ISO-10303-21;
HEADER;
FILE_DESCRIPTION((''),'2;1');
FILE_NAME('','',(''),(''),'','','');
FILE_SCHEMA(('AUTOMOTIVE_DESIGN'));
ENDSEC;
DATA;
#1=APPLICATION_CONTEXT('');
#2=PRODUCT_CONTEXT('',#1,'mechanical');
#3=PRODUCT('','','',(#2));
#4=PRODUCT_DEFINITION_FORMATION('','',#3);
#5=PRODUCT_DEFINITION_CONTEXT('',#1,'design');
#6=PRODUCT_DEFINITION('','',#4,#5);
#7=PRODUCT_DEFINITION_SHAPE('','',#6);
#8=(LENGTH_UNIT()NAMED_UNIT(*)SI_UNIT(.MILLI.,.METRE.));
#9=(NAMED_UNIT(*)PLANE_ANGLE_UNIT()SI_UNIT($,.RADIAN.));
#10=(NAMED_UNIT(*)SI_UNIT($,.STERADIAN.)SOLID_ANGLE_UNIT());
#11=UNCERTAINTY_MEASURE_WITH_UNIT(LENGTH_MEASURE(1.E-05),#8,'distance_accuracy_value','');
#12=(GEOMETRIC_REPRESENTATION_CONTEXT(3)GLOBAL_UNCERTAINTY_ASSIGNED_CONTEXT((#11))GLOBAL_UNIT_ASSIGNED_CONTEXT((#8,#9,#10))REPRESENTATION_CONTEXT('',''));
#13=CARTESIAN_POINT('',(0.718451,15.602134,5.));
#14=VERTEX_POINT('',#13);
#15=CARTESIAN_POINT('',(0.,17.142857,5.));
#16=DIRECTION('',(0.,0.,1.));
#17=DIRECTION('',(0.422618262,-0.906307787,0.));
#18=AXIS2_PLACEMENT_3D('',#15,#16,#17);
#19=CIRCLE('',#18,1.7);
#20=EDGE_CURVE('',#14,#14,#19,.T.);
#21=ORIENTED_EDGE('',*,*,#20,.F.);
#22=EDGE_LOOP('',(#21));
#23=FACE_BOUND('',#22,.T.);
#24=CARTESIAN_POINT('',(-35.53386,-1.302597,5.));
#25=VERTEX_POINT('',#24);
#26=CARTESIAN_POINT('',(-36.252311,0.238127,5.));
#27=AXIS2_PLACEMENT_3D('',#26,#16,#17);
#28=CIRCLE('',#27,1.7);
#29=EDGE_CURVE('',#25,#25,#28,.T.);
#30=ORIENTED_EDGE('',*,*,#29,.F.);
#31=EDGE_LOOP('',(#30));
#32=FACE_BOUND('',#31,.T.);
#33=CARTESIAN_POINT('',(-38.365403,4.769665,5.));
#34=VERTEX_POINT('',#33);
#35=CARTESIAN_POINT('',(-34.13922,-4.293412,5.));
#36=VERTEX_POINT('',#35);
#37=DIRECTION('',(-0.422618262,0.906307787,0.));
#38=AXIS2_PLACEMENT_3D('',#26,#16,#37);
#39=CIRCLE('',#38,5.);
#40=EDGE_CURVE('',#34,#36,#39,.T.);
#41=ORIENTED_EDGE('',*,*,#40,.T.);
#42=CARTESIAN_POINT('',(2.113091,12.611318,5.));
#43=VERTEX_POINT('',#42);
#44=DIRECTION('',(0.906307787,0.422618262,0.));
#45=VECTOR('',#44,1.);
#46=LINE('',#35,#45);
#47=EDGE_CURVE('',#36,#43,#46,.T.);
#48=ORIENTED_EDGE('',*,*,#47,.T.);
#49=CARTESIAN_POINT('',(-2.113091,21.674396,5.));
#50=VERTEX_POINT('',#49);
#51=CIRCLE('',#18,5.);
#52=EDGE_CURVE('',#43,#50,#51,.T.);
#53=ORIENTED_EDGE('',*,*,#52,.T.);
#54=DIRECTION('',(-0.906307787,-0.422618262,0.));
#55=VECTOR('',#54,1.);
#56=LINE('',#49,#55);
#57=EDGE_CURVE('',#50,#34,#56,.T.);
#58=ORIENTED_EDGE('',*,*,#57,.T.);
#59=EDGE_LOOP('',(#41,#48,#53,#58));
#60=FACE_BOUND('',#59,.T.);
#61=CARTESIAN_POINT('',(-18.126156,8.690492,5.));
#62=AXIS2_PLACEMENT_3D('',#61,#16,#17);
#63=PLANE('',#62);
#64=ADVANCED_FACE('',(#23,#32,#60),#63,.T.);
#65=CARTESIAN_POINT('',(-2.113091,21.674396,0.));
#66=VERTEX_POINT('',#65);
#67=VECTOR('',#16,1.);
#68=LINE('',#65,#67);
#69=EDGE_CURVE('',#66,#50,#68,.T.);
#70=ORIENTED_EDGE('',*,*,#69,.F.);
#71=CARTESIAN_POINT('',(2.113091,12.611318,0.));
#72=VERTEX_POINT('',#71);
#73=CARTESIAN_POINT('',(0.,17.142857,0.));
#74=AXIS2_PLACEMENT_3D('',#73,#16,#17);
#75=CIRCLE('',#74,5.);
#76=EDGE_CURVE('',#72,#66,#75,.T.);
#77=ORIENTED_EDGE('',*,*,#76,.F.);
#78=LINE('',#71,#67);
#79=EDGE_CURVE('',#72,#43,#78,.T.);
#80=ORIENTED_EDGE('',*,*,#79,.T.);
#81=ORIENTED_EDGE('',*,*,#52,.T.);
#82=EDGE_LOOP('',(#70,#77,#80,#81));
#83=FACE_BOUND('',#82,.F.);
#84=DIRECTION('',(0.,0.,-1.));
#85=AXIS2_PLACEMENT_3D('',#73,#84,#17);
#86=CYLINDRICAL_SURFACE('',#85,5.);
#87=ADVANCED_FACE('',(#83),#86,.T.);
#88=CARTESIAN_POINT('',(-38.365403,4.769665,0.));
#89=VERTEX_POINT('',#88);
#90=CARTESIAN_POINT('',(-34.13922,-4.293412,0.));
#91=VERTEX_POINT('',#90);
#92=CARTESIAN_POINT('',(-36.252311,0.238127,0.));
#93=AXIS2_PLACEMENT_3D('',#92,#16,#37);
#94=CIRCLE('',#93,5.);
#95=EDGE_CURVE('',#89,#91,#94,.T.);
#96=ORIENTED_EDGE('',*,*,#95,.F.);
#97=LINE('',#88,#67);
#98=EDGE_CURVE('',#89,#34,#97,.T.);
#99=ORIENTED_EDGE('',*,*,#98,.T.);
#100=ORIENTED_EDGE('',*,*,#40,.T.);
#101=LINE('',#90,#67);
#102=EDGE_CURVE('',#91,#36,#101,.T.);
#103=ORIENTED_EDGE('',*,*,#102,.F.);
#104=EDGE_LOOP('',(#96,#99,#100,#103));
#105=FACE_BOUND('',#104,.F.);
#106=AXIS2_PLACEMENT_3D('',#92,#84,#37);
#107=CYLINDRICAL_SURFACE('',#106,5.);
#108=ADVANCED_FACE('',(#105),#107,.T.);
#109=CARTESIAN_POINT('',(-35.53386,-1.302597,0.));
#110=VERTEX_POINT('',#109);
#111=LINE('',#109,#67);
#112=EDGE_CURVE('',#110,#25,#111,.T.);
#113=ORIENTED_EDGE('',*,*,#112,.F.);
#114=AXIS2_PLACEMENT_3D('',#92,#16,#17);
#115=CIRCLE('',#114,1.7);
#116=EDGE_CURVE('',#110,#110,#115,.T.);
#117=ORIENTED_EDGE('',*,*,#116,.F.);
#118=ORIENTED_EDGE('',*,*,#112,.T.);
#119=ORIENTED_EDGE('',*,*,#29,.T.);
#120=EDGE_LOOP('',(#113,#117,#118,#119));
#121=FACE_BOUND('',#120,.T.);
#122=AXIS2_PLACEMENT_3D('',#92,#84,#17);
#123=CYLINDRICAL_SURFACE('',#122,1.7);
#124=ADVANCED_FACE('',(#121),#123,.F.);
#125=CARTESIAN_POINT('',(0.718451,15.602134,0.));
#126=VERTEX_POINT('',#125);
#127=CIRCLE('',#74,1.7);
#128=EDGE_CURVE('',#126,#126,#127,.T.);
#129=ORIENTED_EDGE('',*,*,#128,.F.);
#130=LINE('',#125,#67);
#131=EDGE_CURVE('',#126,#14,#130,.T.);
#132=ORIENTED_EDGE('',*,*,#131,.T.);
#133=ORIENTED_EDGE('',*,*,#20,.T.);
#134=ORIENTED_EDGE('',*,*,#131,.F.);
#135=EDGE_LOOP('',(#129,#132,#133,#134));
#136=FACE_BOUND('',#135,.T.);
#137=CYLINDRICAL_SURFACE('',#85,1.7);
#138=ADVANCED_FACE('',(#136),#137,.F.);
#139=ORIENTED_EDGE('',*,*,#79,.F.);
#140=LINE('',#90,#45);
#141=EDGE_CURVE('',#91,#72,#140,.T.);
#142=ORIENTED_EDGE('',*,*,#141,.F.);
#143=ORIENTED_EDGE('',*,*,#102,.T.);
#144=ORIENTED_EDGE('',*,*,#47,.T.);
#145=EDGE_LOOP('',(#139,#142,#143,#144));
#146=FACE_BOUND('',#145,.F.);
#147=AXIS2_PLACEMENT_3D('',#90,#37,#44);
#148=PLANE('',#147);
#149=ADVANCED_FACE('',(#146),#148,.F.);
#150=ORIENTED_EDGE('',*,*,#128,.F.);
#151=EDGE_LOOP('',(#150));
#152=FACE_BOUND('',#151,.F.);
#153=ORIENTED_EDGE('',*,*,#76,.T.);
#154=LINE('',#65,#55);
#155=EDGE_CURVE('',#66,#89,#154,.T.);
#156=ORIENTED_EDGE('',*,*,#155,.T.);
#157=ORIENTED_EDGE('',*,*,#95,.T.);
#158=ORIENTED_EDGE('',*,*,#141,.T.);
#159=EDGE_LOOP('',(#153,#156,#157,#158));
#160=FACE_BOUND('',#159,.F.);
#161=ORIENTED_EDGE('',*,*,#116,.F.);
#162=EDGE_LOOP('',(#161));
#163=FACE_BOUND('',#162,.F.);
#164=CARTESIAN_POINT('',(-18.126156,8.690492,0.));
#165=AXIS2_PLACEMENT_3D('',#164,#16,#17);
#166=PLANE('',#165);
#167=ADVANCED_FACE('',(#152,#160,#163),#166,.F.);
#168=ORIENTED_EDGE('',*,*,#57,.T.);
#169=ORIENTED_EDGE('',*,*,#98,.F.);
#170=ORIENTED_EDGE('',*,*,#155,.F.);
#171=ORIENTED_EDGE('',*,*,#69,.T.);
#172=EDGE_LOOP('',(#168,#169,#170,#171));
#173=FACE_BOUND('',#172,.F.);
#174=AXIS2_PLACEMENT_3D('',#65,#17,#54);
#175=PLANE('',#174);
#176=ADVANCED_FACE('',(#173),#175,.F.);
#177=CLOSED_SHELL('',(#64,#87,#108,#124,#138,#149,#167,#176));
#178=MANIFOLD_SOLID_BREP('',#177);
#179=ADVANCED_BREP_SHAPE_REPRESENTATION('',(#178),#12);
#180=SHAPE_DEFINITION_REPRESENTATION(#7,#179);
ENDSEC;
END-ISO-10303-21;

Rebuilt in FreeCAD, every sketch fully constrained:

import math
import FreeCAD as App
import Part
import Sketcher
from FreeCAD import Vector
Q = App.Units.Quantity

doc = App.newDocument("Part")
body = doc.addObject("PartDesign::Body", "Body")

# Sketch on XY plane
sketch1 = body.newObject("Sketcher::SketchObject", "Sketch")
sketch1.AttachmentSupport = (doc.getObject("XY_Plane"), [""])
sketch1.MapMode = "FlatFace"
sketch1.addGeometry([
    Part.ArcOfCircle(Part.Circle(Vector(0, 17.1, 0), Vector(0, 0, 1), 5), math.radians(0), math.radians(180)),  # 0
    Part.LineSegment(Vector(-5, 17.1, 0), Vector(-5, -22.9, 0)),  # 1
    Part.ArcOfCircle(Part.Circle(Vector(0, -22.9, 0), Vector(0, 0, 1), 5), math.radians(180), math.radians(360)),  # 2
    Part.LineSegment(Vector(5, -22.9, 0), Vector(5, 17.1, 0)),  # 3
    Part.Circle(Vector(0, -22.9, 0), Vector(0, 0, 1), 1.7),  # 4
    Part.Circle(Vector(0, 17.1, 0), Vector(0, 0, 1), 1.7),  # 5
], False)
sketch1.addConstraint([
    Sketcher.Constraint("Tangent", 0, 2, 1, 1),
    Sketcher.Constraint("Tangent", 1, 2, 2, 1),
    Sketcher.Constraint("Tangent", 2, 2, 3, 1),
    Sketcher.Constraint("Tangent", 3, 2, 0, 1),
    Sketcher.Constraint("Vertical", 1),
    Sketcher.Constraint("Vertical", 3),
    Sketcher.Constraint("Coincident", 4, 3, 2, 3),
    Sketcher.Constraint("Coincident", 5, 3, 0, 3),
    Sketcher.Constraint("Equal", 4, 5),
    Sketcher.Constraint("PointOnObject", 0, 3, -2),
    Sketcher.Constraint("Radius", 0, Q("5 mm")),
    Sketcher.Constraint("Diameter", 4, Q("3.4 mm")),
    Sketcher.Constraint("DistanceY", 1, 2, 1, 1, Q("40 mm")),
    Sketcher.Constraint("DistanceY", -1, 1, 0, 3, Q("17.142857 mm")),
])
pad1 = body.newObject("PartDesign::Pad", "Pad")
pad1.Profile = sketch1
pad1.Length = 5
body2 = doc.addObject("PartDesign::Body", "Body001")
doc.recompute()

body.Placement = App.Placement(Vector(-15.536705, 9.897973, 0), App.Rotation(Vector(0, 0, 1), 295))
boolean = body2.newObject("PartDesign::Boolean", "Boolean")
boolean.Type = "Fuse"
boolean.addObjects([body])

doc.recompute()
